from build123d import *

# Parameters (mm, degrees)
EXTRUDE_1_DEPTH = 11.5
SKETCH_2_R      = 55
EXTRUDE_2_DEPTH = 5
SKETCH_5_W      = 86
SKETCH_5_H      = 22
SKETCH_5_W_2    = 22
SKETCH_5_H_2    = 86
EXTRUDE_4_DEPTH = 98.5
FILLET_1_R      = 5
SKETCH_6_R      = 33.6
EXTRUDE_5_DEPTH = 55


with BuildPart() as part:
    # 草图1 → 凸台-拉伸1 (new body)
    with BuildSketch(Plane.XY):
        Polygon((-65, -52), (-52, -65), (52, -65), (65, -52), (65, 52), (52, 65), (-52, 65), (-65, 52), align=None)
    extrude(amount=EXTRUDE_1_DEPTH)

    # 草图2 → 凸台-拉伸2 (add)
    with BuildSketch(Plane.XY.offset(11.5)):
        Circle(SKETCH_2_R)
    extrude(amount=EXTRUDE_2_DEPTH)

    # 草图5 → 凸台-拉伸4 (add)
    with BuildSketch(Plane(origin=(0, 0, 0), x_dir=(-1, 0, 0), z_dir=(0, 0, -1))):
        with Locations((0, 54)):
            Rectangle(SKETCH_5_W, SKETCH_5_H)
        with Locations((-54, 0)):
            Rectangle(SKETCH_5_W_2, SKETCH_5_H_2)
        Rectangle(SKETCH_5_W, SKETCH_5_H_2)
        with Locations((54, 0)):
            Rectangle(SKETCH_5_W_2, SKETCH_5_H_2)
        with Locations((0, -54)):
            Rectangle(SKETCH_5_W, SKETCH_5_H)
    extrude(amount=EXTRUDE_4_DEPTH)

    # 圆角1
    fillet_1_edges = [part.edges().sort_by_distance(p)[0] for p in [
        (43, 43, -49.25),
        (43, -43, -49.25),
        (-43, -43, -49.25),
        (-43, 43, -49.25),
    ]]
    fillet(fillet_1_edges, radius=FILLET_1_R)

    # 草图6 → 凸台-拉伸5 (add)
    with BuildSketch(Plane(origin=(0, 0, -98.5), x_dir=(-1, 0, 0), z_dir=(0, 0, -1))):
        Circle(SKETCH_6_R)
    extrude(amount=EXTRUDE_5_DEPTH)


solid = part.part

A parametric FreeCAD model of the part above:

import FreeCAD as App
import Part
import Sketcher

V = App.Vector
Q = App.Units.Quantity


def edges_at(feature, points):
    """Names of the edges that pass closest to the given points."""
    edges = feature.Shape.Edges
    near = lambda p: min(range(len(edges)), key=lambda i: edges[i].distToShape(Part.Vertex(*p))[0])
    return sorted({f"Edge{near(p) + 1}" for p in points})

doc = App.newDocument("Part")
params = doc.addObject("Spreadsheet::Sheet", "Params")
for row, (alias, value) in enumerate([
    ("sketch1_width", "104 mm"),
    ("pad1_length", "11.5 mm"),
    ("sketch2_diameter", "110 mm"),
    ("pad2_length", "5 mm"),
    ("sketch3_width", "22 mm"),
    ("sketch3_width2", "86 mm"),
    ("pad3_length", "98.5 mm"),
    ("fillet_radius", "5 mm"),
    ("sketch4_diameter", "67.2 mm"),
    ("pad4_length", "55 mm"),
], start=1):
    params.set(f"A{row}", alias)
    params.set(f"B{row}", "=" + value)
    params.setAlias(f"B{row}", alias)

body = doc.addObject("PartDesign::Body", "Body")

# Sketch on XY plane
sketch1 = body.newObject("Sketcher::SketchObject", "Sketch")
sketch1.AttachmentSupport = (doc.getObject("XY_Plane"), [""])
sketch1.MapMode = "FlatFace"
sketch1.addGeometry([
    Part.LineSegment(V(-65, -52, 0), V(-52, -65, 0)),  # 0
    Part.LineSegment(V(-52, -65, 0), V(52, -65, 0)),  # 1
    Part.LineSegment(V(52, -65, 0), V(65, -52, 0)),  # 2
    Part.LineSegment(V(65, -52, 0), V(65, 52, 0)),  # 3
    Part.LineSegment(V(65, 52, 0), V(52, 65, 0)),  # 4
    Part.LineSegment(V(52, 65, 0), V(-52, 65, 0)),  # 5
    Part.LineSegment(V(-52, 65, 0), V(-65, 52, 0)),  # 6
    Part.LineSegment(V(-65, 52, 0), V(-65, -52, 0)),  # 7
], False)
sketch1.addConstraint([
    Sketcher.Constraint("Coincident", 0, 2, 1, 1),
    Sketcher.Constraint("Coincident", 1, 2, 2, 1),
    Sketcher.Constraint("Coincident", 2, 2, 3, 1),
    Sketcher.Constraint("Coincident", 3, 2, 4, 1),
    Sketcher.Constraint("Coincident", 4, 2, 5, 1),
    Sketcher.Constraint("Coincident", 5, 2, 6, 1),
    Sketcher.Constraint("Coincident", 6, 2, 7, 1),
    Sketcher.Constraint("Coincident", 7, 2, 0, 1),
    Sketcher.Constraint("Horizontal", 1),
    Sketcher.Constraint("Vertical", 3),
    Sketcher.Constraint("Horizontal", 5),
    Sketcher.Constraint("Vertical", 7),
    Sketcher.Constraint("Symmetric", 0, 2, 4, 2, -1, 1),
    Sketcher.Constraint("Symmetric", 2, 2, 6, 2, -1, 1),
    Sketcher.Constraint("Perpendicular", 0, 2),
    Sketcher.Constraint("Perpendicular", 2, 4),
    Sketcher.Constraint("Perpendicular", 4, 6),
    Sketcher.Constraint("Horizontal", 3, 2, 6, 2),
    Sketcher.Constraint("Vertical", 1, 2, 4, 2),
    Sketcher.Constraint("Equal", 5, 3),
    Sketcher.Constraint("DistanceX", 1, 1, 1, 2, Q("104 mm")),
    Sketcher.Constraint("DistanceY", 0, 2, -1, 1, Q("65 mm")),
])
sketch1.setExpression("Constraints[20]", "Params.sketch1_width")
pad1 = body.newObject("PartDesign::Pad", "Pad")
pad1.Profile = sketch1
pad1.setExpression("Length", "Params.pad1_length")

# Sketch on XY plane
sketch2 = body.newObject("Sketcher::SketchObject", "Sketch001")
sketch2.AttachmentSupport = (doc.getObject("XY_Plane"), [""])
sketch2.MapMode = "FlatFace"
sketch2.AttachmentOffset = App.Placement(V(0, 0, 11.5), App.Rotation())
sketch2.addGeometry(Part.Circle(V(0, 0, 0), V(0, 0, 1), 55), False)
sketch2.addConstraint([
    Sketcher.Constraint("Coincident", 0, 3, -1, 1),
    Sketcher.Constraint("Diameter", 0, Q("110 mm")),
])
sketch2.setExpression("Constraints[1]", "Params.sketch2_diameter")
pad2 = body.newObject("PartDesign::Pad", "Pad001")
pad2.Profile = sketch2
pad2.setExpression("Length", "Params.pad2_length")

# Sketch on XY plane
sketch3 = body.newObject("Sketcher::SketchObject", "Sketch002")
sketch3.AttachmentSupport = (doc.getObject("XY_Plane"), [""])
sketch3.MapMode = "FlatFace"
sketch3.addGeometry([
    Part.LineSegment(V(43, 65, 0), V(43, 43, 0)),  # 0
    Part.LineSegment(V(43, 43, 0), V(65, 43, 0)),  # 1
    Part.LineSegment(V(65, 43, 0), V(65, -43, 0)),  # 2
    Part.LineSegment(V(65, -43, 0), V(43, -43, 0)),  # 3
    Part.LineSegment(V(43, -43, 0), V(43, -65, 0)),  # 4
    Part.LineSegment(V(43, -65, 0), V(-43, -65, 0)),  # 5
    Part.LineSegment(V(-43, -65, 0), V(-43, -43, 0)),  # 6
    Part.LineSegment(V(-43, -43, 0), V(-65, -43, 0)),  # 7
    Part.LineSegment(V(-65, -43, 0), V(-65, 43, 0)),  # 8
    Part.LineSegment(V(-65, 43, 0), V(-43, 43, 0)),  # 9
    Part.LineSegment(V(-43, 43, 0), V(-43, 65, 0)),  # 10
    Part.LineSegment(V(-43, 65, 0), V(43, 65, 0)),  # 11
], False)
sketch3.addConstraint([
    Sketcher.Constraint("Coincident", 0, 2, 1, 1),
    Sketcher.Constraint("Coincident", 1, 2, 2, 1),
    Sketcher.Constraint("Coincident", 2, 2, 3, 1),
    Sketcher.Constraint("Coincident", 3, 2, 4, 1),
    Sketcher.Constraint("Coincident", 4, 2, 5, 1),
    Sketcher.Constraint("Coincident", 5, 2, 6, 1),
    Sketcher.Constraint("Coincident", 6, 2, 7, 1),
    Sketcher.Constraint("Coincident", 7, 2, 8, 1),
    Sketcher.Constraint("Coincident", 8, 2, 9, 1),
    Sketcher.Constraint("Coincident", 9, 2, 10, 1),
    Sketcher.Constraint("Coincident", 10, 2, 11, 1),
    Sketcher.Constraint("Coincident", 11, 2, 0, 1),
    Sketcher.Constraint("Vertical", 0),
    Sketcher.Constraint("Horizontal", 1),
    Sketcher.Constraint("Vertical", 2),
    Sketcher.Constraint("Horizontal", 3),
    Sketcher.Constraint("Vertical", 4),
    Sketcher.Constraint("Horizontal", 5),
    Sketcher.Constraint("Vertical", 6),
    Sketcher.Constraint("Horizontal", 7),
    Sketcher.Constraint("Vertical", 8),
    Sketcher.Constraint("Horizontal", 9),
    Sketcher.Constraint("Vertical", 10),
    Sketcher.Constraint("Horizontal", 11),
    Sketcher.Constraint("Symmetric", 0, 2, 6, 2, -1, 1),
    Sketcher.Constraint("Symmetric", 2, 2, 8, 2, -1, 1),
    Sketcher.Constraint("Symmetric", 4, 2, 10, 2, -1, 1),
    Sketcher.Constraint("Symmetric", 3, 2, 6, 2, -2),
    Sketcher.Constraint("Equal", 9, 0),
    Sketcher.Constraint("Equal", 11, 2),
    Sketcher.Constraint("DistanceX", 1, 1, 1, 2, Q("22 mm")),
    Sketcher.Constraint("DistanceX", 5, 2, 5, 1, Q("86 mm")),
])
sketch3.setExpression("Constraints[30]", "Params.sketch3_width")
sketch3.setExpression("Constraints[31]", "Params.sketch3_width2")
pad3 = body.newObject("PartDesign::Pad", "Pad002")
pad3.Profile = sketch3
pad3.setExpression("Length", "Params.pad3_length")
pad3.Reversed = True
doc.recompute()

fillet = body.newObject("PartDesign::Fillet", "Fillet")
fillet.Base = (pad3, edges_at(pad3, [
    (43, 43, -49.25),
    (43, -43, -49.25),
    (-43, -43, -49.25),
    (-43, 43, -49.25),
]))
fillet.setExpression("Radius", "Params.fillet_radius")

# Sketch on XY plane
sketch4 = body.newObject("Sketcher::SketchObject", "Sketch003")
sketch4.AttachmentSupport = (doc.getObject("XY_Plane"), [""])
sketch4.MapMode = "FlatFace"
sketch4.AttachmentOffset = App.Placement(V(0, 0, -98.5), App.Rotation())
sketch4.addGeometry(Part.Circle(V(0, 0, 0), V(0, 0, 1), 34), False)
sketch4.addConstraint([
    Sketcher.Constraint("Coincident", 0, 3, -1, 1),
    Sketcher.Constraint("Diameter", 0, Q("67.2 mm")),
])
sketch4.setExpression("Constraints[1]", "Params.sketch4_diameter")
pad4 = body.newObject("PartDesign::Pad", "Pad003")
pad4.Profile = sketch4
pad4.setExpression("Length", "Params.pad4_length")
pad4.Reversed = True

doc.recompute()
